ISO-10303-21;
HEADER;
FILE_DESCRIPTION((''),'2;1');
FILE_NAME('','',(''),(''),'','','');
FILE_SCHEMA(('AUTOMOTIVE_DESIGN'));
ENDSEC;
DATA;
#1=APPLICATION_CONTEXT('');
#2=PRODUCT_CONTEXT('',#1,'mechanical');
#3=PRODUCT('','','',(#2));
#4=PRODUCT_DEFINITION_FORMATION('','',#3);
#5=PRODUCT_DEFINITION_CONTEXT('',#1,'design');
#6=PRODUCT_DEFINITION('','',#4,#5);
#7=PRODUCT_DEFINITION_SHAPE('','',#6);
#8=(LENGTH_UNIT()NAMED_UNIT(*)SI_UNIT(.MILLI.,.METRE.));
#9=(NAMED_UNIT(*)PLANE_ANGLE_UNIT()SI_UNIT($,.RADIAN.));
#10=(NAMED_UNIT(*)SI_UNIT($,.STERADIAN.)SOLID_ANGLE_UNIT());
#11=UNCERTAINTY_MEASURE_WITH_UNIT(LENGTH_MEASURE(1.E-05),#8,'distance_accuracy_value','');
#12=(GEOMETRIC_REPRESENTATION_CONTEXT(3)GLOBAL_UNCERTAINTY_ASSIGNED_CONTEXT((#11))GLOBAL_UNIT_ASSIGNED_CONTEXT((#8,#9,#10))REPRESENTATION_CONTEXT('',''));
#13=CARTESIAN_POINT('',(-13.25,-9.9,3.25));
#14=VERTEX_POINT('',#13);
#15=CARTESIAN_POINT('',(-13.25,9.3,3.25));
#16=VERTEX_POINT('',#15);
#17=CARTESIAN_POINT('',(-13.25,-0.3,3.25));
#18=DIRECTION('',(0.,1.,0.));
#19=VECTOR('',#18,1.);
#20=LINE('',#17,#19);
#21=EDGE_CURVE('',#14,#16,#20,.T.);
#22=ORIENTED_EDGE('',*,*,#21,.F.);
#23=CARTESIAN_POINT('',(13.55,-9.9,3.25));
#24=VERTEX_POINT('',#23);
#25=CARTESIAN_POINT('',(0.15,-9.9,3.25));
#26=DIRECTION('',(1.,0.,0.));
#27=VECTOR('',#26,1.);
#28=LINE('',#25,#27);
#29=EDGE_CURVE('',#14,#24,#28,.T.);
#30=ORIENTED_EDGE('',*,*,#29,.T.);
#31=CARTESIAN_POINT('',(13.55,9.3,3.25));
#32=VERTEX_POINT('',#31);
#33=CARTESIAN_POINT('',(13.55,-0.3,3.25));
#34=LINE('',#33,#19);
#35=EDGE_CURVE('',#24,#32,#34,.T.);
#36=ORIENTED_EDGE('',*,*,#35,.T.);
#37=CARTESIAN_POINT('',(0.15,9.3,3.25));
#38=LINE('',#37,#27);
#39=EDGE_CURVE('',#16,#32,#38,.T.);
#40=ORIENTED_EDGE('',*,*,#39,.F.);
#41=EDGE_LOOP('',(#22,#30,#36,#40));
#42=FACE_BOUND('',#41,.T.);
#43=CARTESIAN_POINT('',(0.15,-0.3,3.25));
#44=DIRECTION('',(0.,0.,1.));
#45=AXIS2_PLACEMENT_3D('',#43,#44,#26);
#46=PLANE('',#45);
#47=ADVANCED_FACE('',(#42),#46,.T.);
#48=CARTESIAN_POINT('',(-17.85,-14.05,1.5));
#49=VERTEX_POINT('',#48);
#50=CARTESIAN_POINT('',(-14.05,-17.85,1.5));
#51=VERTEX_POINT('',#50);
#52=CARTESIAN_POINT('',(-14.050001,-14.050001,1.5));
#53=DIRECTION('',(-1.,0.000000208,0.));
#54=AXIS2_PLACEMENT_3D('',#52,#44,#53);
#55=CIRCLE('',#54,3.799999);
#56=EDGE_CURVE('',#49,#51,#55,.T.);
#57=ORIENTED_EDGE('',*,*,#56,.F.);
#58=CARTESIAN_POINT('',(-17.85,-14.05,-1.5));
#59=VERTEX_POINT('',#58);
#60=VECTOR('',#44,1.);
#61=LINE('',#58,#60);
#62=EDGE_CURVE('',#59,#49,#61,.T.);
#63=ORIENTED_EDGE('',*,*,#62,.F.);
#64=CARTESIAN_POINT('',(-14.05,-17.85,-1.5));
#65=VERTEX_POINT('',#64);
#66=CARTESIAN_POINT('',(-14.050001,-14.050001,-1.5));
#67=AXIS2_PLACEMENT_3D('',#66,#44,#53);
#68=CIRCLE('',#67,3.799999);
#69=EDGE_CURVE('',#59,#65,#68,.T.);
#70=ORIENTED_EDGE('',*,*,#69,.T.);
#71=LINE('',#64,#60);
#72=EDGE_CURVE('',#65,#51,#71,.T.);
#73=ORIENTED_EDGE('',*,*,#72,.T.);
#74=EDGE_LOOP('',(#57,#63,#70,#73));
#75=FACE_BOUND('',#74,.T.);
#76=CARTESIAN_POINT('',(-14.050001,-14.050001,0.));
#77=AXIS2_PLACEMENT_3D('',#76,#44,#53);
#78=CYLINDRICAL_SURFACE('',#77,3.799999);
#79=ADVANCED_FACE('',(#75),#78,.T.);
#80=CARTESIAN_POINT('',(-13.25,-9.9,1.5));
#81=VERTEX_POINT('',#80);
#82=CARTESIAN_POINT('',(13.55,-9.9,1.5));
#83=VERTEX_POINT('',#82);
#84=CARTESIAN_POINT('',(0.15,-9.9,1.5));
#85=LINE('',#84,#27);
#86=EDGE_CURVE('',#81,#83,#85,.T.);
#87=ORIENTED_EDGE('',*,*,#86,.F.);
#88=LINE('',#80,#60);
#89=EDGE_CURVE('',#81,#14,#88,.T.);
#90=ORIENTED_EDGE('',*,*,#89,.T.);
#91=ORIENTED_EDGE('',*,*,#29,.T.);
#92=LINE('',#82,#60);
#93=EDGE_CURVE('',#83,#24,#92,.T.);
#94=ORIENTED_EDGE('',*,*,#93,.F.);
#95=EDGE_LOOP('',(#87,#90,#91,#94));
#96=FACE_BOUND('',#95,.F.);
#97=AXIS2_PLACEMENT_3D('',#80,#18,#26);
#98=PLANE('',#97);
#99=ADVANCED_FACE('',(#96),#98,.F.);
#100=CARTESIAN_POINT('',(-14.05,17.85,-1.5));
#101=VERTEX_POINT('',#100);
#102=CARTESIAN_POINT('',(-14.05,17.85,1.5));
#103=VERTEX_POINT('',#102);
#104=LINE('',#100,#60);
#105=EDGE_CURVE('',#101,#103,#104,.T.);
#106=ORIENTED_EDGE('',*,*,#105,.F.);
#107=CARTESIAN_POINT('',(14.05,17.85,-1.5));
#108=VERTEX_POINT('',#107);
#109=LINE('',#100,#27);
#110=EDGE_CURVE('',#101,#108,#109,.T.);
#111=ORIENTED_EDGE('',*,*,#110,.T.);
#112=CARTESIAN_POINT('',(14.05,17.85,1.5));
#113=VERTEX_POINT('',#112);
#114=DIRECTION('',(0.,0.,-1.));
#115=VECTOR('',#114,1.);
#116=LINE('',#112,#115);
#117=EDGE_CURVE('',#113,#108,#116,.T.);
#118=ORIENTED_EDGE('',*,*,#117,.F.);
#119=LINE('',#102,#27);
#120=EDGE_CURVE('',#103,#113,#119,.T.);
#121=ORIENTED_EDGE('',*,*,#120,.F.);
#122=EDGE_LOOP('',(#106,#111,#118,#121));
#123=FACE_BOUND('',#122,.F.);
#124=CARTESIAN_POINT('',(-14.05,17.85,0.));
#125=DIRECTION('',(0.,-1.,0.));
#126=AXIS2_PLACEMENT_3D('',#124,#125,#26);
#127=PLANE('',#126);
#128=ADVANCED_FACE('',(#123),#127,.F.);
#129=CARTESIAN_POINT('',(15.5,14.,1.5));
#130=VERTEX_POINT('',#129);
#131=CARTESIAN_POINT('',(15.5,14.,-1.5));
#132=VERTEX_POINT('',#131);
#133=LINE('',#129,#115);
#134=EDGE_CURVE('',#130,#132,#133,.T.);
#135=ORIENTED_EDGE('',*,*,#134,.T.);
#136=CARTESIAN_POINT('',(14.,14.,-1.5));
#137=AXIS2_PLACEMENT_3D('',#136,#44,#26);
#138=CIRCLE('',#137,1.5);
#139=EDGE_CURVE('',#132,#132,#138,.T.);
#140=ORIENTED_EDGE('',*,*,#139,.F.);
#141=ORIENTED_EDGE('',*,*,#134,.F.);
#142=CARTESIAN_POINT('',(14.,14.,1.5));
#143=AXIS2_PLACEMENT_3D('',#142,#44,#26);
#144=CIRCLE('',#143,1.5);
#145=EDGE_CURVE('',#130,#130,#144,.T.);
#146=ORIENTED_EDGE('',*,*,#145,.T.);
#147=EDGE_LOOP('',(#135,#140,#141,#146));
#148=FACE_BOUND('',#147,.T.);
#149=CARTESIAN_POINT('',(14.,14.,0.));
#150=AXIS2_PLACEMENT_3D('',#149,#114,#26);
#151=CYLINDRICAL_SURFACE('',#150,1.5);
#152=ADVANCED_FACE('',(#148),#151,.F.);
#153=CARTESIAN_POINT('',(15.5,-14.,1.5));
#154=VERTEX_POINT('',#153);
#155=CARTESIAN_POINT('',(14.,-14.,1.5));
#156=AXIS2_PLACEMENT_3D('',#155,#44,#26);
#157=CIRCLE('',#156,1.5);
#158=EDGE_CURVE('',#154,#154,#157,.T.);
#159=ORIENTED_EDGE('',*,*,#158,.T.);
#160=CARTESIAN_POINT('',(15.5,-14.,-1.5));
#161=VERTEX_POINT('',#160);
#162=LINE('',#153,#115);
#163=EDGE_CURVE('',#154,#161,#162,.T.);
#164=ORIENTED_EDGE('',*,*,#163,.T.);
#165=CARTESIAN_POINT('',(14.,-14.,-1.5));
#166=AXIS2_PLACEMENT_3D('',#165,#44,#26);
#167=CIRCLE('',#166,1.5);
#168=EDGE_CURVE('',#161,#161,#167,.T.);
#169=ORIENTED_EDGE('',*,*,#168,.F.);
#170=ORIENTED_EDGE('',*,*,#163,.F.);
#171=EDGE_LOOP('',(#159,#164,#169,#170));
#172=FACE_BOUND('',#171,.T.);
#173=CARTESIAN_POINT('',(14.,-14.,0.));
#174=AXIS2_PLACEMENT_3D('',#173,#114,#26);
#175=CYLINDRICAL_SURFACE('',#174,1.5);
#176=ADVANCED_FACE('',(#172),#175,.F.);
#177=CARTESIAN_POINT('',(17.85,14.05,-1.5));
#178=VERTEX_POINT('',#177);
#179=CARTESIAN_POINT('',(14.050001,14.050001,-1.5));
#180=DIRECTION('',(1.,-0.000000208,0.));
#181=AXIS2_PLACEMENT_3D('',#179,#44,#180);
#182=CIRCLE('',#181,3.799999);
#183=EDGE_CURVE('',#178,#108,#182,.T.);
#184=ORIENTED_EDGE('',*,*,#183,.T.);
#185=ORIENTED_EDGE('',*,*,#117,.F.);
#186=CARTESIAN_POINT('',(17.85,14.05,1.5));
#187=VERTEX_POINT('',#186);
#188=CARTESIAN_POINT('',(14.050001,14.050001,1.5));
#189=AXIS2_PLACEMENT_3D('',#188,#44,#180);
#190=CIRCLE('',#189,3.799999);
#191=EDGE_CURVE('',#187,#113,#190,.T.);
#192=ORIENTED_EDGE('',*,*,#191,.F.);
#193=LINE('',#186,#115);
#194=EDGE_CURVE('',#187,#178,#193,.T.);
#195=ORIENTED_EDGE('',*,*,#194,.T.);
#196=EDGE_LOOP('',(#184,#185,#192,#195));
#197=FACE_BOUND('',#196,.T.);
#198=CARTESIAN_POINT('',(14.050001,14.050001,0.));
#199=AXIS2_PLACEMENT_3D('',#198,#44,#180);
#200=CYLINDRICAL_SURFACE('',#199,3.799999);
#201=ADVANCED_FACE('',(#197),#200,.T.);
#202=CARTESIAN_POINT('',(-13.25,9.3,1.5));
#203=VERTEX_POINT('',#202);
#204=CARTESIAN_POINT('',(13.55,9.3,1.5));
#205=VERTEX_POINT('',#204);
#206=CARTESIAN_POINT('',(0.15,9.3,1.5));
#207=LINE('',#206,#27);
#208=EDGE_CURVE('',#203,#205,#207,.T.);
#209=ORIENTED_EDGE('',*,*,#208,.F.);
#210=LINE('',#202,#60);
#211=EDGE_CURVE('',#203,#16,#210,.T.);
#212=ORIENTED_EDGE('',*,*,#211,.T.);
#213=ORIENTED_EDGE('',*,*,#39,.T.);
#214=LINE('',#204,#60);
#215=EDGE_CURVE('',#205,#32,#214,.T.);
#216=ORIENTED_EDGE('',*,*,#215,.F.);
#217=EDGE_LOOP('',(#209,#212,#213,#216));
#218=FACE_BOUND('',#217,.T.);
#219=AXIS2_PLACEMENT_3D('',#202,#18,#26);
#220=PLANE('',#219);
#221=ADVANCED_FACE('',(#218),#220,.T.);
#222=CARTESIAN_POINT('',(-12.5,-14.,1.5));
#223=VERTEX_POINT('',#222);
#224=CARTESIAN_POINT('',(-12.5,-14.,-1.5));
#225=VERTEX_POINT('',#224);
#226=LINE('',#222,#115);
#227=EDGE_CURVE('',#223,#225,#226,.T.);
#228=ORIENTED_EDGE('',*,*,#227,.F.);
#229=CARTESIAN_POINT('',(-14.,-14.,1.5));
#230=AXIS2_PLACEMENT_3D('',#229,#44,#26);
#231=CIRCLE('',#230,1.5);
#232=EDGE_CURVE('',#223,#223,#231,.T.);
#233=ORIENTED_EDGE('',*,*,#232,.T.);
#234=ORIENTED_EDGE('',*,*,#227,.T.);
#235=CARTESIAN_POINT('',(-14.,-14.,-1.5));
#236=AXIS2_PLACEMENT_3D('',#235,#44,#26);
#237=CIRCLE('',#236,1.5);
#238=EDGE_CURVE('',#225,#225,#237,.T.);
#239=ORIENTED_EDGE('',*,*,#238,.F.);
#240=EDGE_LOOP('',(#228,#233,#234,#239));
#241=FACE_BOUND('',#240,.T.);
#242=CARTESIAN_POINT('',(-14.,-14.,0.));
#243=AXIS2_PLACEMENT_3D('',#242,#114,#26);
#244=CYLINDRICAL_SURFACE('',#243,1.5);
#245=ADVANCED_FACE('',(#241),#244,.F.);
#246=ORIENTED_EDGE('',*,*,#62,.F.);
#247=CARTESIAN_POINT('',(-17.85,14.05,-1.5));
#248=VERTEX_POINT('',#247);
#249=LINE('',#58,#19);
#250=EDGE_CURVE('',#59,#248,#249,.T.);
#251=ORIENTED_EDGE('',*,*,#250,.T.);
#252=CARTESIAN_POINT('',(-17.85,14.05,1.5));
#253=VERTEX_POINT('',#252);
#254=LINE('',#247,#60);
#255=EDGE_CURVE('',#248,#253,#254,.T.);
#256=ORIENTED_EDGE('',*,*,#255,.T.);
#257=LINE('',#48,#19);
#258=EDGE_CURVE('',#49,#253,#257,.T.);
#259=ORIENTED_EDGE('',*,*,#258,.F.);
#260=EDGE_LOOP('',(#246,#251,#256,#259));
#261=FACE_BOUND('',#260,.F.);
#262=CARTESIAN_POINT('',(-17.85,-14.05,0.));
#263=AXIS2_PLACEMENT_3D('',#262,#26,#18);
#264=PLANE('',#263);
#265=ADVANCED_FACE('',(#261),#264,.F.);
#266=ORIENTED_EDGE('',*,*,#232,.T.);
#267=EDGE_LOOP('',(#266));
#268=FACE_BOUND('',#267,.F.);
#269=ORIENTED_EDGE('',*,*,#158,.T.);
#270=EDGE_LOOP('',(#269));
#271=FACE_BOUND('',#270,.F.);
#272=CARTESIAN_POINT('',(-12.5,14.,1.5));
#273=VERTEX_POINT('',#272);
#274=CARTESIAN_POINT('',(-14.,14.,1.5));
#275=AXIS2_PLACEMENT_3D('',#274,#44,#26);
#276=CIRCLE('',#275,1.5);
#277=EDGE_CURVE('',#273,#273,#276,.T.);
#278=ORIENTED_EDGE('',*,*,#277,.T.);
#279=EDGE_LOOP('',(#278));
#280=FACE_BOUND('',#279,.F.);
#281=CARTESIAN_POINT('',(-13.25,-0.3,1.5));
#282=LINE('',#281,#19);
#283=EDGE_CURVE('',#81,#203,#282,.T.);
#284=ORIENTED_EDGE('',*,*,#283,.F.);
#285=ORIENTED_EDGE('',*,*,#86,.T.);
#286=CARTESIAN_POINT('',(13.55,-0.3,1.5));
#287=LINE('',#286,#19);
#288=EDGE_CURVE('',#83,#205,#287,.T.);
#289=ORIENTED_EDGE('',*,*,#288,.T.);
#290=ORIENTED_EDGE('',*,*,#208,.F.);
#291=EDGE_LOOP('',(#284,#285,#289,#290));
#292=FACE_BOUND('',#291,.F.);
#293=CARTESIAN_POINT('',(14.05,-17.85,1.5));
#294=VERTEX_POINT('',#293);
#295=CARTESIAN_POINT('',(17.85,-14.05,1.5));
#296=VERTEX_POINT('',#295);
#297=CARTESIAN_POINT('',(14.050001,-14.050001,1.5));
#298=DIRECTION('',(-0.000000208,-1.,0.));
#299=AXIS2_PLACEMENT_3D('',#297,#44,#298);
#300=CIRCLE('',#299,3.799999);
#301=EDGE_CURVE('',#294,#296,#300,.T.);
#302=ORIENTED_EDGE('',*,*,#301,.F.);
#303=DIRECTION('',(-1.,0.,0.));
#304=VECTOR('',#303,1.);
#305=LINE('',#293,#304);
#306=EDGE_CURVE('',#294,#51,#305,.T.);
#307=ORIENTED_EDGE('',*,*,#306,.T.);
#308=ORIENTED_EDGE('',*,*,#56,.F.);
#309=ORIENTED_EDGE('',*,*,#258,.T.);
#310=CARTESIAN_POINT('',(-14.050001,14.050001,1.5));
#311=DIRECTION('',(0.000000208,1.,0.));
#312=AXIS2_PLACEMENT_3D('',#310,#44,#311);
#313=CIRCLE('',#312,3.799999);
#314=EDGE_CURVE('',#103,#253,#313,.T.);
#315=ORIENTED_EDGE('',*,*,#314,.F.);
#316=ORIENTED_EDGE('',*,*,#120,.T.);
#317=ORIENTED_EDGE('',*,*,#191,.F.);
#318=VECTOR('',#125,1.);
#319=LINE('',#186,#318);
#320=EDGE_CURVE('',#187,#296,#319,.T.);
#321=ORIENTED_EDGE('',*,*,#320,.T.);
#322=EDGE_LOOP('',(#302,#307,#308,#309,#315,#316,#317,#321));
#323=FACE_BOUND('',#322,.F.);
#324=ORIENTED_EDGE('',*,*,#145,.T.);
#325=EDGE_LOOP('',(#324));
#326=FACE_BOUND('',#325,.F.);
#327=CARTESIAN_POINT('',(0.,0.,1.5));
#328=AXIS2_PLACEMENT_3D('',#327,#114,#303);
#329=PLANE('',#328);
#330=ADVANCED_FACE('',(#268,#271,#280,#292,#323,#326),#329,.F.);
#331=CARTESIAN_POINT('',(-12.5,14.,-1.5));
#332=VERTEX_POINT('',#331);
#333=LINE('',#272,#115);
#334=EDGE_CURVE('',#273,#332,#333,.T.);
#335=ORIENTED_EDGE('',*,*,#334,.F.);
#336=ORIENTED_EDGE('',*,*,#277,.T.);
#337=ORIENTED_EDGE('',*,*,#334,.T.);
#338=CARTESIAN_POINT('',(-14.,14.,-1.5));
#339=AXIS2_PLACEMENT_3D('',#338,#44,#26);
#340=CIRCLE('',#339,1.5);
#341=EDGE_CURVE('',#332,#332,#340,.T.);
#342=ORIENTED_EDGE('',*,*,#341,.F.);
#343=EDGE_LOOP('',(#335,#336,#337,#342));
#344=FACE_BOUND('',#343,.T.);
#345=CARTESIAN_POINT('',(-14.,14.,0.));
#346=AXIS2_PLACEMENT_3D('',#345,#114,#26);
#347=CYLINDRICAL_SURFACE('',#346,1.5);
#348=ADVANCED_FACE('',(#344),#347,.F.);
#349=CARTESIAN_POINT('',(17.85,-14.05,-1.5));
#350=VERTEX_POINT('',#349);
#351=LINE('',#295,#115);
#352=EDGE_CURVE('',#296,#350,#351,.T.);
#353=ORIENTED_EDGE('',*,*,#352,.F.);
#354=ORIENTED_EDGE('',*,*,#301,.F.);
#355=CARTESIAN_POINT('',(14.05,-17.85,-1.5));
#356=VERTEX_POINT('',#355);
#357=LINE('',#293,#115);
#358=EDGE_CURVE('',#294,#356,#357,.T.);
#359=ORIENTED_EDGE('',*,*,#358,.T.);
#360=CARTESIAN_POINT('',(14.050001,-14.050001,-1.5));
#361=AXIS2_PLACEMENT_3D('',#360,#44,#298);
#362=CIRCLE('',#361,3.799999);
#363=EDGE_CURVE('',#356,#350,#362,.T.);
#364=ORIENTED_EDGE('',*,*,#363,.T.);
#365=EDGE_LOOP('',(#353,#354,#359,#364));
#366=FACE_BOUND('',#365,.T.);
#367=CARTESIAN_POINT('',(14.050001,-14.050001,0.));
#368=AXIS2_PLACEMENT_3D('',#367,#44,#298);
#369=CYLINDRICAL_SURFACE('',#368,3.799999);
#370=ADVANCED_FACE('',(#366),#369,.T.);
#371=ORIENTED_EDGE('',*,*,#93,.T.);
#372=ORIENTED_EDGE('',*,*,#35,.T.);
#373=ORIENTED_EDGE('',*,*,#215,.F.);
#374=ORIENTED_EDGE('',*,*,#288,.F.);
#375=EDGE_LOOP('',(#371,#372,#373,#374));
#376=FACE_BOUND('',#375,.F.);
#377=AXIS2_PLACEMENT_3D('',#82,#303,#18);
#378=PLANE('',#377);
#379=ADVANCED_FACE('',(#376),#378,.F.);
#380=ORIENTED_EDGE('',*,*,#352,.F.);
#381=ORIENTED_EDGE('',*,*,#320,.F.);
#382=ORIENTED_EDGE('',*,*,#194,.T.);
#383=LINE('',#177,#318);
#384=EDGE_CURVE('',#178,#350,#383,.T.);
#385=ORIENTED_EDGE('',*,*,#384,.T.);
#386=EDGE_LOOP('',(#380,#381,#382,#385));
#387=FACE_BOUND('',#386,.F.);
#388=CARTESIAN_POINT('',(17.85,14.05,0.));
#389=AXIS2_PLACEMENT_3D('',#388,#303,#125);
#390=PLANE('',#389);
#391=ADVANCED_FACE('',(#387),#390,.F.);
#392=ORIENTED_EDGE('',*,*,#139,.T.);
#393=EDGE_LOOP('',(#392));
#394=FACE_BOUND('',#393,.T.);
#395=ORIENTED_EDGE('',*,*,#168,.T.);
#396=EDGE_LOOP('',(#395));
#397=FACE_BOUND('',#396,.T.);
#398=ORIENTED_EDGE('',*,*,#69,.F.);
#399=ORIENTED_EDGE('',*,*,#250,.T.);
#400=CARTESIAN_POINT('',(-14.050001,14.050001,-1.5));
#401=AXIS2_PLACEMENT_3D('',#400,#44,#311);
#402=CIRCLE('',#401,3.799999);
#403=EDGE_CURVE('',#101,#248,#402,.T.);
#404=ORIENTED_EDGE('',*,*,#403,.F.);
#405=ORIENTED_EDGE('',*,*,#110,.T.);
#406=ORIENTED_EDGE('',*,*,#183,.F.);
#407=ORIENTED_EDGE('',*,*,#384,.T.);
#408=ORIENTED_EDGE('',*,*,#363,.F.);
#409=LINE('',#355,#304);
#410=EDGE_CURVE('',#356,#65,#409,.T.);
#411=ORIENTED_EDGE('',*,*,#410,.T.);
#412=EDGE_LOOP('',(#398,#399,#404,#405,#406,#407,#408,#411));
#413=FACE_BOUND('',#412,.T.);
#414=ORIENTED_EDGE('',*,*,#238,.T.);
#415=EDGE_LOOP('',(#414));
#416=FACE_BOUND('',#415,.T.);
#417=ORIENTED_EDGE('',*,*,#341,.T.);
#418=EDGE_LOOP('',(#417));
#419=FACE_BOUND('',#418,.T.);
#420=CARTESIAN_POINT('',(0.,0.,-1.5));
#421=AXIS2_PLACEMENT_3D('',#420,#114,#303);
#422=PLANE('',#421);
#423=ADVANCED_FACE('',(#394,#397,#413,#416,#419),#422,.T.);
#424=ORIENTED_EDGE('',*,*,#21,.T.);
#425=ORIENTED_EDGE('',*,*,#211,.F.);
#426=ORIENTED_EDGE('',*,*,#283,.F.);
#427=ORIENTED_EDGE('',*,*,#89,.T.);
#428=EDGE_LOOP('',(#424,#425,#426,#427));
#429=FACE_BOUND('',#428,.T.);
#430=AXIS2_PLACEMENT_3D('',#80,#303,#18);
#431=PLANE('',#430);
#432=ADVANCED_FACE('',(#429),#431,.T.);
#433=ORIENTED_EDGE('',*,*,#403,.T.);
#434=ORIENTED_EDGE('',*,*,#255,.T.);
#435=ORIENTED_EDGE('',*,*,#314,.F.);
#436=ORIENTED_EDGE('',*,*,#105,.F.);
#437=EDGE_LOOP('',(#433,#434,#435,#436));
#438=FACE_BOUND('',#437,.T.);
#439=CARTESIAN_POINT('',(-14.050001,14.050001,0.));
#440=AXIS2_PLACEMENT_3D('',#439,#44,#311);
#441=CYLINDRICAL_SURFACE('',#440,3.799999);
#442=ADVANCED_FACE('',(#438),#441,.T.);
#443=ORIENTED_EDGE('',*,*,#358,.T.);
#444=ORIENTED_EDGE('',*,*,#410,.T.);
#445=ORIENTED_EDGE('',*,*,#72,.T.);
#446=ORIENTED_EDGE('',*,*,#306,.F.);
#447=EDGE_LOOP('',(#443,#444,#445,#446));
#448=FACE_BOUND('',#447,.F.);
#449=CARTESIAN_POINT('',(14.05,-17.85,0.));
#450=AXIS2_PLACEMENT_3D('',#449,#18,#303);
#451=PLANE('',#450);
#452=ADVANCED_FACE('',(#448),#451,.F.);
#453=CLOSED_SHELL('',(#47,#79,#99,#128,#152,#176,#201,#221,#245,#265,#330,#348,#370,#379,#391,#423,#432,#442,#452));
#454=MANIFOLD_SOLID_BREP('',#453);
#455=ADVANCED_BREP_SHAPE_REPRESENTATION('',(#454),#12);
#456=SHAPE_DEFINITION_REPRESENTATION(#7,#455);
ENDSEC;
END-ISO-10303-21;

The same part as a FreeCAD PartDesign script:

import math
import FreeCAD as App
import Part
import Sketcher
from FreeCAD import Vector


def add_polygon(sketch, points):
    """Adds a closed chain of lines whose ends are joined by coincident constraints."""
    first, n = sketch.GeometryCount, len(points)
    for a, b in zip(points, points[1:] + points[:1]):
        sketch.addGeometry(Part.LineSegment(App.Vector(*a, 0), App.Vector(*b, 0)), False)
    for i in range(n):
        sketch.addConstraint(Sketcher.Constraint("Coincident", first + i, 2, first + (i + 1) % n, 1))

doc = App.newDocument("Part")
body = doc.addObject("PartDesign::Body", "Body")

# Sketch on XY plane
sketch1 = body.newObject("Sketcher::SketchObject", "Sketch")
sketch1.AttachmentSupport = (doc.getObject("XY_Plane"), [""])
sketch1.MapMode = "FlatFace"
sketch1.addGeometry([
    Part.LineSegment(Vector(14.05, 17.85, 0), Vector(-14.05, 17.85, 0)),  # 0
    Part.ArcOfCircle(Part.Circle(Vector(-14.050001, 14.050001, 0), Vector(0, 0, 1), 3.799999), math.radians(89.999988), math.radians(180.000012)),  # 1
    Part.LineSegment(Vector(-17.85, 14.05, 0), Vector(-17.85, -14.05, 0)),  # 2
    Part.ArcOfCircle(Part.Circle(Vector(-14.050001, -14.050001, 0), Vector(0, 0, 1), 3.799999), math.radians(179.999988), math.radians(270.000012)),  # 3
    Part.LineSegment(Vector(-14.05, -17.85, 0), Vector(14.05, -17.85, 0)),  # 4
    Part.ArcOfCircle(Part.Circle(Vector(14.050001, -14.050001, 0), Vector(0, 0, 1), 3.799999), math.radians(-90.000012), math.radians(0.000012)),  # 5
    Part.LineSegment(Vector(17.85, -14.05, 0), Vector(17.85, 14.05, 0)),  # 6
    Part.ArcOfCircle(Part.Circle(Vector(14.050001, 14.050001, 0), Vector(0, 0, 1), 3.799999), math.radians(-0.000012), math.radians(90.000012)),  # 7
    Part.Circle(Vector(14, -14, 0), Vector(0, 0, 1), 1.5),  # 8
    Part.Circle(Vector(-14, -14, 0), Vector(0, 0, 1), 1.5),  # 9
    Part.Circle(Vector(14, 14, 0), Vector(0, 0, 1), 1.5),  # 10
    Part.Circle(Vector(-14, 14, 0), Vector(0, 0, 1), 1.5),  # 11
], False)
sketch1.addConstraint([
    Sketcher.Constraint("Tangent", 0, 2, 1, 1),
    Sketcher.Constraint("Tangent", 1, 2, 2, 1),
    Sketcher.Constraint("Tangent", 2, 2, 3, 1),
    Sketcher.Constraint("Tangent", 3, 2, 4, 1),
    Sketcher.Constraint("Tangent", 4, 2, 5, 1),
    Sketcher.Constraint("Tangent", 5, 2, 6, 1),
    Sketcher.Constraint("Tangent", 6, 2, 7, 1),
    Sketcher.Constraint("Tangent", 7, 2, 0, 1),
    Sketcher.Constraint("Horizontal", 0),
    Sketcher.Constraint("Vertical", 2),
    Sketcher.Constraint("Horizontal", 4),
    Sketcher.Constraint("Vertical", 6),
    Sketcher.Constraint("Equal", 1, 3),
    Sketcher.Constraint("Equal", 3, 5),
    Sketcher.Constraint("Equal", 5, 7),
    Sketcher.Constraint("Equal", 8, 9),
    Sketcher.Constraint("Equal", 9, 10),
    Sketcher.Constraint("Equal", 10, 11),
    Sketcher.Constraint("Symmetric", 1, 3, 5, 3, -1, 1),
    Sketcher.Constraint("Symmetric", 9, 3, 10, 3, -1, 1),
    Sketcher.Constraint("Symmetric", 8, 3, 11, 3, -1, 1),
    Sketcher.Constraint("Symmetric", 8, 3, 9, 3, -2),
    Sketcher.Constraint("Equal", 4, 2),
    Sketcher.Constraint("Diameter", 8, 3.0),
    Sketcher.Constraint("Radius", 1, 3.799999),
    Sketcher.Constraint("DistanceX", 0, 2, 0, 1, 28.1),
    Sketcher.Constraint("DistanceX", -1, 1, 8, 3, 14.0),
    Sketcher.Constraint("DistanceY", 8, 3, -1, 1, 14.0),
])
pad1 = body.newObject("PartDesign::Pad", "Pad")
pad1.Profile = sketch1
pad1.Length = 3
pad1.Midplane = True

# Sketch on XY plane
sketch2 = body.newObject("Sketcher::SketchObject", "Sketch001")
sketch2.AttachmentSupport = (doc.getObject("XY_Plane"), [""])
sketch2.MapMode = "FlatFace"
sketch2.AttachmentOffset = App.Placement(Vector(0, 0, 1.5), App.Rotation())
add_polygon(sketch2, [(-13.25, 9.3), (-13.25, -9.9), (13.55, -9.9), (13.55, 9.3)])  # lines 0-3
sketch2.addConstraint([
    Sketcher.Constraint("Vertical", 0),
    Sketcher.Constraint("Horizontal", 1),
    Sketcher.Constraint("Vertical", 2),
    Sketcher.Constraint("Horizontal", 3),
    Sketcher.Constraint("DistanceX", 1, 1, 1, 2, 26.8),
    Sketcher.Constraint("DistanceY", 0, 2, 0, 1, 19.2),
    Sketcher.Constraint("DistanceY", 0, 2, -1, 1, 9.9),
    Sketcher.Constraint("DistanceX", 0, 2, -1, 1, 13.25),
])
pad2 = body.newObject("PartDesign::Pad", "Pad001")
pad2.Profile = sketch2
pad2.Length = 1.75

doc.recompute()
